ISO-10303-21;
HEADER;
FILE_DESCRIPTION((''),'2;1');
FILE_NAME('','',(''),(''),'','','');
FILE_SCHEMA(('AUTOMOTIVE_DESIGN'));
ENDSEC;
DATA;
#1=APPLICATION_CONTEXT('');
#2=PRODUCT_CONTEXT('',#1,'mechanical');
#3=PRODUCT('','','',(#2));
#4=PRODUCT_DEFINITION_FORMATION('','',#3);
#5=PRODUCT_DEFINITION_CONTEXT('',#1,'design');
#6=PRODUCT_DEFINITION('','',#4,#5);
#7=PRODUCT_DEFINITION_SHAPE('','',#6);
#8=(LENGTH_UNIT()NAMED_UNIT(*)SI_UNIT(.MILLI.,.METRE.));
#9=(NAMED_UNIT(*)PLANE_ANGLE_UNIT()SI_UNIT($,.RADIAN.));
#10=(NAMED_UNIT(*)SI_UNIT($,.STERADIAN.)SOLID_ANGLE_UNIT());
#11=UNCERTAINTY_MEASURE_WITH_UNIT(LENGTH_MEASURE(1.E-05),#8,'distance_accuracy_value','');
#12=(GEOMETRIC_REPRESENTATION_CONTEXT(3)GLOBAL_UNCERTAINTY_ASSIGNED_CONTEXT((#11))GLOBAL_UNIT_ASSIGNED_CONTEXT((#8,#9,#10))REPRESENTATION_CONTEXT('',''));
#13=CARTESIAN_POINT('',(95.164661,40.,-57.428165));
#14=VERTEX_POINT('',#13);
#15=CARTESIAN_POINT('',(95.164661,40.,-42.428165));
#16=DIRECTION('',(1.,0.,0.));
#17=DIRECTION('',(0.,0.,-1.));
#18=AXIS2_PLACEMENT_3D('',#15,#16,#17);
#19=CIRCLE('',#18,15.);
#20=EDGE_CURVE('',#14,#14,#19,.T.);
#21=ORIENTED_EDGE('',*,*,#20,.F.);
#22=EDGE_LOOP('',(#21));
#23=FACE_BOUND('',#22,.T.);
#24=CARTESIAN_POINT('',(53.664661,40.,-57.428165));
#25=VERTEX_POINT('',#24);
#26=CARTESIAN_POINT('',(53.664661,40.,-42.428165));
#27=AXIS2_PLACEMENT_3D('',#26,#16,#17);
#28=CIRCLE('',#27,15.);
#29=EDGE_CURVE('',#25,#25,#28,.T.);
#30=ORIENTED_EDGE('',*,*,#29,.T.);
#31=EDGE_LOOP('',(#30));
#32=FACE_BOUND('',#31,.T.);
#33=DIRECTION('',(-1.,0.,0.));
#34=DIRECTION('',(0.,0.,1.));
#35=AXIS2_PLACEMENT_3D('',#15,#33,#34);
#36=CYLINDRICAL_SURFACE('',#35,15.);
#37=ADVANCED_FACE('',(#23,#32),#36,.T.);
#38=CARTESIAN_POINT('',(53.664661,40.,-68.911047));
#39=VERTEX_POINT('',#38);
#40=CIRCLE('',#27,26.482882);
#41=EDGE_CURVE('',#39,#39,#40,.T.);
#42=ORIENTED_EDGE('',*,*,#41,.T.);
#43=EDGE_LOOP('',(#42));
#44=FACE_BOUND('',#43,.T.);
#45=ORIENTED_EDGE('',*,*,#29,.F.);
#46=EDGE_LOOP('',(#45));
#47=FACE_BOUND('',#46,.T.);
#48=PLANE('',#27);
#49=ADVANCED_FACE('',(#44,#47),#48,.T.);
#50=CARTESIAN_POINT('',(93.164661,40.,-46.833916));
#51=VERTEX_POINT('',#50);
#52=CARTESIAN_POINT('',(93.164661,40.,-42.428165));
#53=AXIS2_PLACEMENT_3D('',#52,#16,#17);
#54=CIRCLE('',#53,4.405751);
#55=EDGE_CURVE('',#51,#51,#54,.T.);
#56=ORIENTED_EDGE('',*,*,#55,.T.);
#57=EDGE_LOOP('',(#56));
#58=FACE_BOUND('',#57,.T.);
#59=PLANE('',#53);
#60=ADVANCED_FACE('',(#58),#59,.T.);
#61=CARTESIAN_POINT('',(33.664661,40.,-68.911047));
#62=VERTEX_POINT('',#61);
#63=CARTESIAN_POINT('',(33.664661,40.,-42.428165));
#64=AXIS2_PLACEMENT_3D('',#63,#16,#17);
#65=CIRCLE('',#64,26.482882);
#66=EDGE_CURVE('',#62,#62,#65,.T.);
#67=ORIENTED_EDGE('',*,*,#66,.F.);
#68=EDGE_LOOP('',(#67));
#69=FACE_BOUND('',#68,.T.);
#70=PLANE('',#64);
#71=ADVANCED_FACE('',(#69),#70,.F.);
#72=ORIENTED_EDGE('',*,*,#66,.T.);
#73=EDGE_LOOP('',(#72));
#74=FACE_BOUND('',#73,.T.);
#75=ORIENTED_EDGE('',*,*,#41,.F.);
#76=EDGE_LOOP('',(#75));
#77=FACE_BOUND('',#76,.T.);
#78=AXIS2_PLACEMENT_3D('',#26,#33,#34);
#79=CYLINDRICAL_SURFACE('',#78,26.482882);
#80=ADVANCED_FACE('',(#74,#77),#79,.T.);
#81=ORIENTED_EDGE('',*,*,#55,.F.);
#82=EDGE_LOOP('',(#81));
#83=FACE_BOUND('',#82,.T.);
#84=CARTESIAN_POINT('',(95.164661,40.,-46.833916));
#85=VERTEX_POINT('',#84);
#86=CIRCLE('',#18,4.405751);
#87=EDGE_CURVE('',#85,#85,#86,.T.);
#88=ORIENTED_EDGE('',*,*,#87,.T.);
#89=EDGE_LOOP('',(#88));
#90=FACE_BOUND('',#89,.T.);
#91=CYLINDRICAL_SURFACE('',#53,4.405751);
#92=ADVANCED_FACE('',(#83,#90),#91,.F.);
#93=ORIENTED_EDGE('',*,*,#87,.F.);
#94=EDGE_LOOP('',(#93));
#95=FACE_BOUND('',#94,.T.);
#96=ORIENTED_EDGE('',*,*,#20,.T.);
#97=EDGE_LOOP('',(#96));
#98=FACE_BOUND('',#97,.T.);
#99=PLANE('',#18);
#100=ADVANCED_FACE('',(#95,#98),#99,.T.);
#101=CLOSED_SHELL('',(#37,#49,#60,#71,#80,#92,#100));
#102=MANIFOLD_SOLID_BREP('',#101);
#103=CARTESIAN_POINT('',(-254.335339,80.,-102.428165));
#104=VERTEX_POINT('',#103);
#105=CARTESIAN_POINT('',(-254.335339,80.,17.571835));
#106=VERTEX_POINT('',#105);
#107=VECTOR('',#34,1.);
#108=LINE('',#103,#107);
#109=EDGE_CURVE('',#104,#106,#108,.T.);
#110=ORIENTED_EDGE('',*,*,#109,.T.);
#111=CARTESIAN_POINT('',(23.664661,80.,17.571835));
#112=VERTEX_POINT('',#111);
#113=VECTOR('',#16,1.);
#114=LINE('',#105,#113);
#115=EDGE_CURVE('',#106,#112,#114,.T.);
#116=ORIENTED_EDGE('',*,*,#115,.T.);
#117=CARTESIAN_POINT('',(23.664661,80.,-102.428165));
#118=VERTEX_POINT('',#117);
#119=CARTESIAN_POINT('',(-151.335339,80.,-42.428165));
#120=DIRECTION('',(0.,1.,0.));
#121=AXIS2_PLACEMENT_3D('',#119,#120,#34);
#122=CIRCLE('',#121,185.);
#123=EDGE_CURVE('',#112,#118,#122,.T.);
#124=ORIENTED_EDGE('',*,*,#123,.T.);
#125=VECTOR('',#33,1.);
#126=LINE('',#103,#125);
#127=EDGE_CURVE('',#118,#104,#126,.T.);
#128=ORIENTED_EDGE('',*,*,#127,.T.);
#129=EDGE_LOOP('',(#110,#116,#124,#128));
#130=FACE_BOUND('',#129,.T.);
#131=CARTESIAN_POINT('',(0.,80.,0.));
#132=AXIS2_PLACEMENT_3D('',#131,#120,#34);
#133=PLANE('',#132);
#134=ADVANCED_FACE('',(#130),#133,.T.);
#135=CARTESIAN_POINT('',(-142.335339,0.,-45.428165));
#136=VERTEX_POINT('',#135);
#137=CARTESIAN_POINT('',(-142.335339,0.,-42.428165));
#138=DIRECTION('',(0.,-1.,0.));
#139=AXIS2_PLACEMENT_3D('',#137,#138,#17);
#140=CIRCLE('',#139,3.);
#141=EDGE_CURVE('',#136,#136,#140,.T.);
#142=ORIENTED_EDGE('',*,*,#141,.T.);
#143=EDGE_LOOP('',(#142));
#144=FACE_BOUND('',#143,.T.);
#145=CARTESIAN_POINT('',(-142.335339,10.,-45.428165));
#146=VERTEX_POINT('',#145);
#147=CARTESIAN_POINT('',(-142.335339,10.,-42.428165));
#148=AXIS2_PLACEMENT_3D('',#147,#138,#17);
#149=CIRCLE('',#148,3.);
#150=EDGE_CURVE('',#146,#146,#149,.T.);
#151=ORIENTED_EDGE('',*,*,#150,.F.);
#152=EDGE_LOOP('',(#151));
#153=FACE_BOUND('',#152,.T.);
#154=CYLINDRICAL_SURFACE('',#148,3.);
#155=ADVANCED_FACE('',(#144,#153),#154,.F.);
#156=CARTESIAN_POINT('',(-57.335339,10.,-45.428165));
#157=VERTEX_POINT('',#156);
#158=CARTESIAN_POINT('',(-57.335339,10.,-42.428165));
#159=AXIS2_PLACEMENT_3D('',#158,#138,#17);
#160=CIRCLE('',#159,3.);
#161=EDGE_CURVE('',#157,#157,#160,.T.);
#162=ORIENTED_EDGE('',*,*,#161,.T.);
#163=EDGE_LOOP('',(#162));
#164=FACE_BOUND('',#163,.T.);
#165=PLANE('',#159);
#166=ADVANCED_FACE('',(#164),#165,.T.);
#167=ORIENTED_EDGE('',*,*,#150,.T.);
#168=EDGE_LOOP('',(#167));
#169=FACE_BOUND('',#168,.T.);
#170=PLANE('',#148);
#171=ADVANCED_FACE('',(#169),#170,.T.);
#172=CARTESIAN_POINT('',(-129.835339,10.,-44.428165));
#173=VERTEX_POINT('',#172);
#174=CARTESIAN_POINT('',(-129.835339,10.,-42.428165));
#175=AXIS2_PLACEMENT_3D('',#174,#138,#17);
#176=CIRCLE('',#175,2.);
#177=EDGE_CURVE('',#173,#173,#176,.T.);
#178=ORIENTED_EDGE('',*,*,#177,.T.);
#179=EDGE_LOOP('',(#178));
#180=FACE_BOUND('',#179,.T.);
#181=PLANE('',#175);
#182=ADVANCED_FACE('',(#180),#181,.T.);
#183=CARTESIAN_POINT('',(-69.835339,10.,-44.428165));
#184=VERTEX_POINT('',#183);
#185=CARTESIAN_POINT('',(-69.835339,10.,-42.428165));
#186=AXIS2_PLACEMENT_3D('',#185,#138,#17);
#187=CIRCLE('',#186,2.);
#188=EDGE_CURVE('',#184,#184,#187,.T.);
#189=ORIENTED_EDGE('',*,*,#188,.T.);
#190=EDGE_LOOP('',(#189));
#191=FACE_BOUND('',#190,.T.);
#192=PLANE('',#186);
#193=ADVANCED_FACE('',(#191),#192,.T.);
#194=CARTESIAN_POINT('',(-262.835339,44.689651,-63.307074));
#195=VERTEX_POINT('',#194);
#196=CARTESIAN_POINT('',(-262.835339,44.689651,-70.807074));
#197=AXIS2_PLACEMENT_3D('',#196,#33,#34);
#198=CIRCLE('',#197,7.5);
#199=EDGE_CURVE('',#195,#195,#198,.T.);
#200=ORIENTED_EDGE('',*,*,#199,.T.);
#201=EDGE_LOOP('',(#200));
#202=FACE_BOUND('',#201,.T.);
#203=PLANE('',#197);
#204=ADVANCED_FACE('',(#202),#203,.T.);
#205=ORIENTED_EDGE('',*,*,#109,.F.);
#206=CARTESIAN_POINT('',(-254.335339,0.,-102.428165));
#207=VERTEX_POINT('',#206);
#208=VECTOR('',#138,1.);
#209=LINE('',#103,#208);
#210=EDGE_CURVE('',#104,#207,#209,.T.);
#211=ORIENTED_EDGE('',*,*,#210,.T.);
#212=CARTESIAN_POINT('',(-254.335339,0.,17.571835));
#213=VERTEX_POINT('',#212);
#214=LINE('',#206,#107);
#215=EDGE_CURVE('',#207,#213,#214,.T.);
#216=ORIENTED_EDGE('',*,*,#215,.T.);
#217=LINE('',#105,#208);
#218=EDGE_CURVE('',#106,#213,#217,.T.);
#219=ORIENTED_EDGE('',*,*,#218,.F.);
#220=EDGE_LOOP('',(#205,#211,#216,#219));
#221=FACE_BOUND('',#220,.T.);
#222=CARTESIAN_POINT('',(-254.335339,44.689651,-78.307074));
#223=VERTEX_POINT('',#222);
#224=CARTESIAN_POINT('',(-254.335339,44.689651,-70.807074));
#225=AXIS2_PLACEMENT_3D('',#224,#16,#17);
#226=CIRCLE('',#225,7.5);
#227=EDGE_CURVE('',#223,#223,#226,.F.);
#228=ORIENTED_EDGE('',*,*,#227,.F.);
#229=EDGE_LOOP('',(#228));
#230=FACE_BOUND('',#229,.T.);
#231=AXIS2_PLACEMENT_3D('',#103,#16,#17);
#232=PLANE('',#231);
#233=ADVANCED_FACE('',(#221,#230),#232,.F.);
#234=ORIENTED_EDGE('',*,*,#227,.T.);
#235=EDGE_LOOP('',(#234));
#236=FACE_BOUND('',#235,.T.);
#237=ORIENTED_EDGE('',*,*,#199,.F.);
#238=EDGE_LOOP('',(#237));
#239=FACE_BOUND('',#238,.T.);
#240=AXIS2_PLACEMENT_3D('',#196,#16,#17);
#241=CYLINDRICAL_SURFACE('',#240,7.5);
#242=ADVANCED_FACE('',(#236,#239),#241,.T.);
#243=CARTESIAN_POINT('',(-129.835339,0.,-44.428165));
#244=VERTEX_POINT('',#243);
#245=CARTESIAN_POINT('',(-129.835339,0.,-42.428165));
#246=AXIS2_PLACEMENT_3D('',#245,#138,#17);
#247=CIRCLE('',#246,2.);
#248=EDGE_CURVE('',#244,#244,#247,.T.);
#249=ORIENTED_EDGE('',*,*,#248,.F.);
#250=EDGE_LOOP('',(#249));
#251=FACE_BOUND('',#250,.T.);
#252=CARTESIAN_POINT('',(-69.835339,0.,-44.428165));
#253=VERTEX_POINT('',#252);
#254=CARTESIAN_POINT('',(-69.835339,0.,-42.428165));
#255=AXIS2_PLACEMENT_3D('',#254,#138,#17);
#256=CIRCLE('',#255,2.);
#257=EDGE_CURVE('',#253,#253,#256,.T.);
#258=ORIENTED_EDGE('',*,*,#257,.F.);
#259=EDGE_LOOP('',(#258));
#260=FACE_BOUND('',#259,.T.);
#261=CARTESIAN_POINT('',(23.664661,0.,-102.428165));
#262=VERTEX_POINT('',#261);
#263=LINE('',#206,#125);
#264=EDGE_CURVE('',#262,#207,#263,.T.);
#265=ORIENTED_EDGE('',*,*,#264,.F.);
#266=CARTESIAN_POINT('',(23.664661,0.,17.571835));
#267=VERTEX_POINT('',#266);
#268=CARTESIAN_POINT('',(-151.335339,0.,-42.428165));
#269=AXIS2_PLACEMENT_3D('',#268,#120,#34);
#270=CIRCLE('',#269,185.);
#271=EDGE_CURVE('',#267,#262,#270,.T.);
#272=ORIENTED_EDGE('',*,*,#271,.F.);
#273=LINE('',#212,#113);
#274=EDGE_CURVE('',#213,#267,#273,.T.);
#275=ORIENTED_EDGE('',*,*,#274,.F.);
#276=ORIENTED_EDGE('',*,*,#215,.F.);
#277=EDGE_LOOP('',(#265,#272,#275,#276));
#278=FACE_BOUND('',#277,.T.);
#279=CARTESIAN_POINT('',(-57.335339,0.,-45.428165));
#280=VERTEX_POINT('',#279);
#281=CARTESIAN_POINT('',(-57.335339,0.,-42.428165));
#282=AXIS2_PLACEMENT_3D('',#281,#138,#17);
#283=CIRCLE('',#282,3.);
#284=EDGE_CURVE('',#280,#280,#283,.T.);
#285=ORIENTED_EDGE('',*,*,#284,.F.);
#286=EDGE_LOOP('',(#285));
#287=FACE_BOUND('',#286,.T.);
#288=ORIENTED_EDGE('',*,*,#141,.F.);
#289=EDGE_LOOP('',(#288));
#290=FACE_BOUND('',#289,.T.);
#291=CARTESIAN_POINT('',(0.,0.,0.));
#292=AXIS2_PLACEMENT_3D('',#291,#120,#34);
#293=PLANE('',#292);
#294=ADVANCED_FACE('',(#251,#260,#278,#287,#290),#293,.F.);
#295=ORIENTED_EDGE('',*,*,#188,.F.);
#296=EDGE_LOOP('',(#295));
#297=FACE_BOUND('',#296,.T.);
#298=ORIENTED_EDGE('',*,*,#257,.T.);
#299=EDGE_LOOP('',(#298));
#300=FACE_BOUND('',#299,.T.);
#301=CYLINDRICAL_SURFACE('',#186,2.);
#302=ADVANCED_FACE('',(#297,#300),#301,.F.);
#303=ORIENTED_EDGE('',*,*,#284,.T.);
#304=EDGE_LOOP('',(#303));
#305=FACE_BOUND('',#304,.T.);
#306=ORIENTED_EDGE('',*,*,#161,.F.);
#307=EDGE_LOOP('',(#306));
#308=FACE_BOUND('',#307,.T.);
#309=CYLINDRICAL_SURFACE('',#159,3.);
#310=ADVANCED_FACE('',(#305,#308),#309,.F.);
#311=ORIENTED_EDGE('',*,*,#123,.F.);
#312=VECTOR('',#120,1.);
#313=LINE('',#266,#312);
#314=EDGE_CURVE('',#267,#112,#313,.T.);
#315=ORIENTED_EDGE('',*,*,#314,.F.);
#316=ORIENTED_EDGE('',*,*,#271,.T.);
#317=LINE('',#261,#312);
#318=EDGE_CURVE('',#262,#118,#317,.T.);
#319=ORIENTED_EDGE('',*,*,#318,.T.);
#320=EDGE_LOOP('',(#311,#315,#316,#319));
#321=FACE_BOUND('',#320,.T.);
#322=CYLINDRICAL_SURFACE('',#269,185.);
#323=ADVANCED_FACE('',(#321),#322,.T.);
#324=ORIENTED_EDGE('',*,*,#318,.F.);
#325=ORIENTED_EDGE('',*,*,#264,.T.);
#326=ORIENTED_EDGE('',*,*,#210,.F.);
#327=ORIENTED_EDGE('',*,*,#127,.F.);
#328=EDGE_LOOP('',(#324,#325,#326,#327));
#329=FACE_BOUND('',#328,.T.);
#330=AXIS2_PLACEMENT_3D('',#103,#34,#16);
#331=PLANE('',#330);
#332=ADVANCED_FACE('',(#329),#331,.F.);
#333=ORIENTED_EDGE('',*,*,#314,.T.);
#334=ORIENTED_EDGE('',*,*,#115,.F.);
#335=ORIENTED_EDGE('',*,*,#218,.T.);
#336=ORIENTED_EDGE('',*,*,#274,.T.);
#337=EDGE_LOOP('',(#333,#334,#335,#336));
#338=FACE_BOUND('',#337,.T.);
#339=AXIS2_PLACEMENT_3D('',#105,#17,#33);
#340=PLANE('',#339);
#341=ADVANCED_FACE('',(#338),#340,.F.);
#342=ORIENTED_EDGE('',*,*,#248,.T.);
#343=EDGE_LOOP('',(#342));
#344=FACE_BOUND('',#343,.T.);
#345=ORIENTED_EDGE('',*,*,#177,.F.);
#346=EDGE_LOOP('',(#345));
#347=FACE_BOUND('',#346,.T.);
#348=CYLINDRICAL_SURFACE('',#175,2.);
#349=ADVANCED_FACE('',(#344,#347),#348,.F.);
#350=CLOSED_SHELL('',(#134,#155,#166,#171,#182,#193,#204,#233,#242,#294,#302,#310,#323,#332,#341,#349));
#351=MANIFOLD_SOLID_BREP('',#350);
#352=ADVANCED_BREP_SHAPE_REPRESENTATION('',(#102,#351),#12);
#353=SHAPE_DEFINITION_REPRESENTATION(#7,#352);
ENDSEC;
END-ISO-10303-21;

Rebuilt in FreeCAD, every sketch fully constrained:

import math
import FreeCAD as App
import Part
import Sketcher

V = App.Vector

doc = App.newDocument("Part")
body = doc.addObject("PartDesign::Body", "Body")

# Sketch on XZ plane
sketch1 = doc.addObject("Sketcher::SketchObject", "Sketch")
body.addObject(sketch1)
sketch1.AttachmentSupport = (doc.XZ_Plane, [""])
sketch1.MapMode = "FlatFace"
sketch1.addGeometry([
    Part.LineSegment(V(-254, -102, 0), V(-254, 18, 0)),
    Part.LineSegment(V(-254, 18, 0), V(95, 18, 0)),
    Part.LineSegment(V(95, 18, 0), V(95, -102, 0)),
    Part.LineSegment(V(95, -102, 0), V(-254, -102, 0)),
], False)
sketch1.addConstraint([
    Sketcher.Constraint("Coincident", 0, 2, 1, 1),
    Sketcher.Constraint("Coincident", 1, 2, 2, 1),
    Sketcher.Constraint("Coincident", 2, 2, 3, 1),
    Sketcher.Constraint("Coincident", 3, 2, 0, 1),
    Sketcher.Constraint("Vertical", 0),
    Sketcher.Constraint("Horizontal", 1),
    Sketcher.Constraint("Vertical", 2),
    Sketcher.Constraint("Horizontal", 3),
    Sketcher.Constraint("DistanceY", 0, 1, 0, 2, 120.0),
    Sketcher.Constraint("DistanceX", 1, 1, 1, 2, 349.5),
    Sketcher.Constraint("DistanceX", 0, 2, -1, 1, 254.335339),
    Sketcher.Constraint("DistanceY", -1, 1, 0, 2, 17.571835),
])
pad1 = doc.addObject("PartDesign::Pad", "Pad")
body.addObject(pad1)
pad1.Profile = sketch1
pad1.Length = 80
pad1.Reversed = True

# Sketch on XZ plane
sketch2 = doc.addObject("Sketcher::SketchObject", "Sketch001")
body.addObject(sketch2)
sketch2.AttachmentSupport = (doc.XZ_Plane, [""])
sketch2.MapMode = "FlatFace"
sketch2.AttachmentOffset = App.Placement(V(0, 0, -80), App.Rotation())
sketch2.addGeometry([
    Part.LineSegment(V(54, -102, 0), V(54, 18, 0)),
    Part.LineSegment(V(54, 18, 0), V(95, 18, 0)),
    Part.LineSegment(V(95, 18, 0), V(95, -102, 0)),
    Part.LineSegment(V(95, -102, 0), V(54, -102, 0)),
], False)
sketch2.addConstraint([
    Sketcher.Constraint("Coincident", 0, 2, 1, 1),
    Sketcher.Constraint("Coincident", 1, 2, 2, 1),
    Sketcher.Constraint("Coincident", 2, 2, 3, 1),
    Sketcher.Constraint("Coincident", 3, 2, 0, 1),
    Sketcher.Constraint("Vertical", 0),
    Sketcher.Constraint("Horizontal", 1),
    Sketcher.Constraint("Vertical", 2),
    Sketcher.Constraint("Horizontal", 3),
    Sketcher.Constraint("DistanceY", 0, 1, 0, 2, 120.0),
    Sketcher.Constraint("DistanceX", 1, 1, 1, 2, 41.5),
    Sketcher.Constraint("DistanceX", -1, 1, 0, 2, 53.664661),
    Sketcher.Constraint("DistanceY", -1, 1, 0, 2, 17.571835),
])
pocket1 = doc.addObject("PartDesign::Pocket", "Pocket")
body.addObject(pocket1)
pocket1.Profile = sketch2
pocket1.Type = "ThroughAll"
pocket1.Reversed = True

# Sketch on XZ plane
sketch3 = doc.addObject("Sketcher::SketchObject", "Sketch002")
body.addObject(sketch3)
sketch3.AttachmentSupport = (doc.XZ_Plane, [""])
sketch3.MapMode = "FlatFace"
sketch3.AttachmentOffset = App.Placement(V(0, 0, -80), App.Rotation())
sketch3.addGeometry([
    Part.LineSegment(V(54, -102, 0), V(24, -102, 0)),
    Part.ArcOfCircle(Part.Circle(V(-151, -42, 0), V(0, 0, 1), 185), math.radians(-19), math.radians(19)),
    Part.LineSegment(V(24, 18, 0), V(54, 18, 0)),
    Part.LineSegment(V(54, 18, 0), V(54, -102, 0)),
], False)
sketch3.addConstraint([
    Sketcher.Constraint("Coincident", 0, 2, 1, 1),
    Sketcher.Constraint("Coincident", 1, 2, 2, 1),
    Sketcher.Constraint("Coincident", 2, 2, 3, 1),
    Sketcher.Constraint("Coincident", 3, 2, 0, 1),
    Sketcher.Constraint("Horizontal", 0),
    Sketcher.Constraint("Horizontal", 2),
    Sketcher.Constraint("Vertical", 3),
    Sketcher.Constraint("Vertical", 0, 2, 1, 2),
    Sketcher.Constraint("Radius", 1, 185.0),
    Sketcher.Constraint("DistanceX", 0, 2, 0, 1, 30.0),
    Sketcher.Constraint("DistanceY", 3, 2, 3, 1, 120.0),
    Sketcher.Constraint("DistanceX", 1, 3, -1, 1, 151.335339),
    Sketcher.Constraint("DistanceY", 1, 3, -1, 1, 42.428165),
])
pocket2 = doc.addObject("PartDesign::Pocket", "Pocket001")
body.addObject(pocket2)
pocket2.Profile = sketch3
pocket2.Length = 80
pocket2.Reversed = True

# Sketch on YZ plane
sketch4 = doc.addObject("Sketcher::SketchObject", "Sketch003")
body.addObject(sketch4)
sketch4.AttachmentSupport = (doc.YZ_Plane, [""])
sketch4.MapMode = "FlatFace"
sketch4.AttachmentOffset = App.Placement(V(0, 0, -254.335339), App.Rotation())
sketch4.addGeometry(Part.Circle(V(45, -71, 0), V(0, 0, 1), 8), False)
sketch4.addConstraint([
    Sketcher.Constraint("Diameter", 0, 15.0),
    Sketcher.Constraint("DistanceX", -1, 1, 0, 3, 44.689651),
    Sketcher.Constraint("DistanceY", 0, 3, -1, 1, 70.807074),
])
pad2 = doc.addObject("PartDesign::Pad", "Pad001")
body.addObject(pad2)
pad2.Profile = sketch4
pad2.Length = 8.5
pad2.Reversed = True

# Sketch on XZ plane
sketch5 = doc.addObject("Sketcher::SketchObject", "Sketch004")
body.addObject(sketch5)
sketch5.AttachmentSupport = (doc.XZ_Plane, [""])
sketch5.MapMode = "FlatFace"
sketch5.addGeometry([
    Part.Circle(V(-142.3, -42.4, 0), V(0, 0, 1), 3),
    Part.Circle(V(-57.3, -42.4, 0), V(0, 0, 1), 3),
    Part.Circle(V(-129.8, -42.4, 0), V(0, 0, 1), 2),
    Part.Circle(V(-69.8, -42.4, 0), V(0, 0, 1), 2),
], False)
sketch5.addConstraint([
    Sketcher.Constraint("Equal", 0, 1),
    Sketcher.Constraint("Equal", 2, 3),
    Sketcher.Constraint("Horizontal", 0, 3, 1, 3),
    Sketcher.Constraint("Horizontal", 1, 3, 2, 3),
    Sketcher.Constraint("Horizontal", 2, 3, 3, 3),
    Sketcher.Constraint("Diameter", 0, 6.0),
    Sketcher.Constraint("Diameter", 2, 4.0),
    Sketcher.Constraint("DistanceX", 0, 3, 1, 3, 85.0),
    Sketcher.Constraint("DistanceX", 2, 3, 3, 3, 60.0),
    Sketcher.Constraint("DistanceX", 0, 3, 2, 3, 12.5),
    Sketcher.Constraint("DistanceX", 0, 3, -1, 1, 142.335339),
    Sketcher.Constraint("DistanceY", 0, 3, -1, 1, 42.428165),
])
pocket3 = doc.addObject("PartDesign::Pocket", "Pocket002")
body.addObject(pocket3)
pocket3.Profile = sketch5
pocket3.Length = 10
body2 = doc.addObject("PartDesign::Body", "Body001")

# Sketch on YZ plane
sketch6 = doc.addObject("Sketcher::SketchObject", "Sketch005")
body2.addObject(sketch6)
sketch6.AttachmentSupport = (doc.getObject("YZ_Plane001"), [""])
sketch6.MapMode = "FlatFace"
sketch6.AttachmentOffset = App.Placement(V(0, 0, 33.664661), App.Rotation())
sketch6.addGeometry(Part.Circle(V(40, -42, 0), V(0, 0, 1), 26), False)
sketch6.addConstraint([
    Sketcher.Constraint("DistanceX", -1, 1, 0, 3, 40.0),
    Sketcher.Constraint("Diameter", 0, 52.965764),
    Sketcher.Constraint("DistanceY", 0, 3, -1, 1, 42.428165),
])
pad3 = doc.addObject("PartDesign::Pad", "Pad002")
body2.addObject(pad3)
pad3.Profile = sketch6
pad3.Length = 20

# Sketch on YZ plane
sketch7 = doc.addObject("Sketcher::SketchObject", "Sketch006")
body2.addObject(sketch7)
sketch7.AttachmentSupport = (doc.getObject("YZ_Plane001"), [""])
sketch7.MapMode = "FlatFace"
sketch7.AttachmentOffset = App.Placement(V(0, 0, 53.664661), App.Rotation())
sketch7.addGeometry(Part.Circle(V(40, -42, 0), V(0, 0, 1), 15), False)
sketch7.addConstraint([
    Sketcher.Constraint("Diameter", 0, 30.0),
    Sketcher.Constraint("DistanceX", -1, 1, 0, 3, 40.0),
    Sketcher.Constraint("DistanceY", 0, 3, -1, 1, 42.428165),
])
pad4 = doc.addObject("PartDesign::Pad", "Pad003")
body2.addObject(pad4)
pad4.Profile = sketch7
pad4.Length = 41.5

# Sketch on YZ plane
sketch8 = doc.addObject("Sketcher::SketchObject", "Sketch007")
body2.addObject(sketch8)
sketch8.AttachmentSupport = (doc.getObject("YZ_Plane001"), [""])
sketch8.MapMode = "FlatFace"
sketch8.AttachmentOffset = App.Placement(V(0, 0, 95.164661), App.Rotation())
sketch8.addGeometry(Part.Circle(V(40, -42.4, 0), V(0, 0, 1), 4.4), False)
sketch8.addConstraint([
    Sketcher.Constraint("DistanceX", -1, 1, 0, 3, 40.0),
    Sketcher.Constraint("Diameter", 0, 8.811501),
    Sketcher.Constraint("DistanceY", 0, 3, -1, 1, 42.428165),
])
pocket4 = doc.addObject("PartDesign::Pocket", "Pocket003")
body2.addObject(pocket4)
pocket4.Profile = sketch8
pocket4.Length = 2

doc.recompute()
